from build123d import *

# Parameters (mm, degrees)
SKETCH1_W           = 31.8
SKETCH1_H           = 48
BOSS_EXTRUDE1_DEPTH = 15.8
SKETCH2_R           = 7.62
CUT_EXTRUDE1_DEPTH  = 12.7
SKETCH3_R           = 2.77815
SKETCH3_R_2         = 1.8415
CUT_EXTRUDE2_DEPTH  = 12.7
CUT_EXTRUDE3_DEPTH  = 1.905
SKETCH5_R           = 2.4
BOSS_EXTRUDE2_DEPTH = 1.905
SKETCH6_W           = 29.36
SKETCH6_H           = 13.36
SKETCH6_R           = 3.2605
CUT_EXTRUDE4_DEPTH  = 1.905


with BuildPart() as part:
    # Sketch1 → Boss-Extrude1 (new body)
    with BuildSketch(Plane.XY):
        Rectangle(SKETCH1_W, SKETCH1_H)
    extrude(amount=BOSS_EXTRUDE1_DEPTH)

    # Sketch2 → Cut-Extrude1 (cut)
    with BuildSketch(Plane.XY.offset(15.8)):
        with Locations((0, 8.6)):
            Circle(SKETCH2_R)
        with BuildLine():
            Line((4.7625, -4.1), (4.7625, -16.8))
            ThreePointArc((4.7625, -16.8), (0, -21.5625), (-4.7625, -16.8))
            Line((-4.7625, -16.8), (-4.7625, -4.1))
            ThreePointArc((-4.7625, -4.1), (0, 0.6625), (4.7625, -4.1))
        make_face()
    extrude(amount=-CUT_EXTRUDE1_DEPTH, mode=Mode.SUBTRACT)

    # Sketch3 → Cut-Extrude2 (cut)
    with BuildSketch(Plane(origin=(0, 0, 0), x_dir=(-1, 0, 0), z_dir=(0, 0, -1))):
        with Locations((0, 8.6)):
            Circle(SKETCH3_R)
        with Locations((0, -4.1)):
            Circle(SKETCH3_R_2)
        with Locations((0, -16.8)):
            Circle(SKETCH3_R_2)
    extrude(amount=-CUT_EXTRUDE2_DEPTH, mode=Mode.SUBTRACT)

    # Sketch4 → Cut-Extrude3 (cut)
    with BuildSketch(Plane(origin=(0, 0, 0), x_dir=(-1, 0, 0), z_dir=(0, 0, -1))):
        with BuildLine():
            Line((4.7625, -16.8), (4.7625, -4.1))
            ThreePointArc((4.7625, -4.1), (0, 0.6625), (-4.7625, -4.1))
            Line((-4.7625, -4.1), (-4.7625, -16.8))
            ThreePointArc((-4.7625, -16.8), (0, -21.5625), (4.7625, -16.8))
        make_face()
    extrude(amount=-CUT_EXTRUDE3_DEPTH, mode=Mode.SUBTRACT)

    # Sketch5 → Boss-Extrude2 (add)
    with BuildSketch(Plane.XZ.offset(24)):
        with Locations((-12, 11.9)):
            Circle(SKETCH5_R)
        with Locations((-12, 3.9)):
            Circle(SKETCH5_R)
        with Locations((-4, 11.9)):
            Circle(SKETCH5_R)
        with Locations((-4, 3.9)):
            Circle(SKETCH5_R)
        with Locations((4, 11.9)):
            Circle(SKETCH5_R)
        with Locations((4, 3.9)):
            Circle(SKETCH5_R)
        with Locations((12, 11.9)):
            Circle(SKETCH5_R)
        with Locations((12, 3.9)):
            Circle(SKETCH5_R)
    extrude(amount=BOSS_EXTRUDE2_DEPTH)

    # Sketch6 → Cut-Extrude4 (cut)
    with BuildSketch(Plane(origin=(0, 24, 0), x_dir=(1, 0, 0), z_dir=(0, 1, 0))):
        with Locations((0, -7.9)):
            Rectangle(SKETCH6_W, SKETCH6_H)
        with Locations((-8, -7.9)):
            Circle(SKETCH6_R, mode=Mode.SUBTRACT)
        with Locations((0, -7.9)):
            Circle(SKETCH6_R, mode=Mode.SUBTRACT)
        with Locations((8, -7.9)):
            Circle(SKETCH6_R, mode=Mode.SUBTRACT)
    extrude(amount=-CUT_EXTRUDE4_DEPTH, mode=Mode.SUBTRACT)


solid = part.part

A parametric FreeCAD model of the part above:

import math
import FreeCAD as App
import Part
import Sketcher

V = App.Vector
Q = App.Units.Quantity

doc = App.newDocument("Part")
body = doc.addObject("PartDesign::Body", "Body")

# Sketch on XY plane
sketch1 = body.newObject("Sketcher::SketchObject", "Sketch")
sketch1.AttachmentSupport = (doc.getObject("XY_Plane"), [""])
sketch1.MapMode = "FlatFace"
sketch1.addGeometry([
    Part.LineSegment(V(-16, 24, 0), V(-16, -24, 0)),
    Part.LineSegment(V(-16, -24, 0), V(16, -24, 0)),
    Part.LineSegment(V(16, -24, 0), V(16, 24, 0)),
    Part.LineSegment(V(16, 24, 0), V(-16, 24, 0)),
], False)
sketch1.addConstraint([
    Sketcher.Constraint("Coincident", 0, 2, 1, 1),
    Sketcher.Constraint("Coincident", 1, 2, 2, 1),
    Sketcher.Constraint("Coincident", 2, 2, 3, 1),
    Sketcher.Constraint("Coincident", 3, 2, 0, 1),
    Sketcher.Constraint("Vertical", 0),
    Sketcher.Constraint("Horizontal", 1),
    Sketcher.Constraint("Vertical", 2),
    Sketcher.Constraint("Horizontal", 3),
    Sketcher.Constraint("Symmetric", 0, 2, 2, 2, -1, 1),
    Sketcher.Constraint("DistanceX", 1, 1, 1, 2, 31.8),
    Sketcher.Constraint("DistanceY", 0, 2, 0, 1, 48.0),
])
pad1 = body.newObject("PartDesign::Pad", "Pad")
pad1.Profile = sketch1
pad1.Length = 15.8

# Sketch on XY plane
sketch2 = body.newObject("Sketcher::SketchObject", "Sketch001")
sketch2.AttachmentSupport = (doc.getObject("XY_Plane"), [""])
sketch2.MapMode = "FlatFace"
sketch2.AttachmentOffset = App.Placement(V(0, 0, 15.8), App.Rotation())
sketch2.addGeometry([
    Part.Circle(V(0, 8.6, 0), V(0, 0, 1), 7.6),  # 0
    Part.LineSegment(V(4.8, -16.8, 0), V(4.8, -4.1, 0)),  # 1
    Part.ArcOfCircle(Part.Circle(V(0, -4.1, 0), V(0, 0, 1), 4.8), math.radians(0), math.radians(180)),  # 2
    Part.LineSegment(V(-4.8, -4.1, 0), V(-4.8, -16.8, 0)),  # 3
    Part.ArcOfCircle(Part.Circle(V(0, -16.8, 0), V(0, 0, 1), 4.8), math.radians(180), math.radians(360)),  # 4
], False)
sketch2.addConstraint([
    Sketcher.Constraint("Tangent", 1, 2, 2, 1),
    Sketcher.Constraint("Tangent", 2, 2, 3, 1),
    Sketcher.Constraint("Tangent", 3, 2, 4, 1),
    Sketcher.Constraint("Tangent", 4, 2, 1, 1),
    Sketcher.Constraint("Vertical", 1),
    Sketcher.Constraint("Vertical", 3),
    Sketcher.Constraint("PointOnObject", 0, 3, -2),
    Sketcher.Constraint("PointOnObject", 2, 3, -2),
    Sketcher.Constraint("Diameter", 0, Q("0.6 in")),
    Sketcher.Constraint("DistanceY", 1, 1, 1, 2, Q("0.5 in")),
    Sketcher.Constraint("Radius", 2, Q("0.1875 in")),
    Sketcher.Constraint("DistanceY", 4, 3, 0, 3, Q("1 in")),
    Sketcher.Constraint("DistanceY", -1, 1, 0, 3, 8.6),
])
pocket1 = body.newObject("PartDesign::Pocket", "Pocket")
pocket1.Profile = sketch2
pocket1.Length = Q("0.5 in")

# Sketch on XY plane
sketch3 = body.newObject("Sketcher::SketchObject", "Sketch002")
sketch3.AttachmentSupport = (doc.getObject("XY_Plane"), [""])
sketch3.MapMode = "FlatFace"
sketch3.addGeometry([
    Part.Circle(V(0, 8.6, 0), V(0, 0, 1), 2.8),
    Part.Circle(V(0, -4.1, 0), V(0, 0, 1), 1.8),
    Part.Circle(V(0, -16.8, 0), V(0, 0, 1), 1.8),
], False)
sketch3.addConstraint([
    Sketcher.Constraint("Equal", 1, 2),
    Sketcher.Constraint("PointOnObject", 0, 3, -2),
    Sketcher.Constraint("PointOnObject", 1, 3, -2),
    Sketcher.Constraint("PointOnObject", 2, 3, -2),
    Sketcher.Constraint("Diameter", 1, Q("0.145 in")),
    Sketcher.Constraint("DistanceY", 2, 3, 0, 3, Q("1 in")),
    Sketcher.Constraint("DistanceY", 1, 3, 0, 3, Q("0.5 in")),
    Sketcher.Constraint("Diameter", 0, 5.5563),
    Sketcher.Constraint("DistanceY", -1, 1, 0, 3, 8.6),
])
pocket2 = body.newObject("PartDesign::Pocket", "Pocket001")
pocket2.Profile = sketch3
pocket2.Length = Q("0.5 in")
pocket2.Reversed = True

# Sketch on XY plane
sketch4 = body.newObject("Sketcher::SketchObject", "Sketch003")
sketch4.AttachmentSupport = (doc.getObject("XY_Plane"), [""])
sketch4.MapMode = "FlatFace"
sketch4.addGeometry([
    Part.LineSegment(V(-4.8, -16.8, 0), V(-4.8, -4.1, 0)),
    Part.ArcOfCircle(Part.Circle(V(0, -4.1, 0), V(0, 0, 1), 4.8), math.radians(0), math.radians(180)),
    Part.LineSegment(V(4.8, -4.1, 0), V(4.8, -16.8, 0)),
    Part.ArcOfCircle(Part.Circle(V(0, -16.8, 0), V(0, 0, 1), 4.8), math.radians(180), math.radians(360)),
], False)
sketch4.addConstraint([
    Sketcher.Constraint("Tangent", 0, 2, 1, 2),
    Sketcher.Constraint("Tangent", 1, 1, 2, 1),
    Sketcher.Constraint("Tangent", 2, 2, 3, 2),
    Sketcher.Constraint("Tangent", 3, 1, 0, 1),
    Sketcher.Constraint("Vertical", 0),
    Sketcher.Constraint("Vertical", 2),
    Sketcher.Constraint("PointOnObject", 1, 3, -2),
    Sketcher.Constraint("DistanceY", 0, 1, 0, 2, Q("0.5 in")),
    Sketcher.Constraint("Radius", 1, Q("0.1875 in")),
    Sketcher.Constraint("DistanceY", 1, 3, -1, 1, 4.1),
])
pocket3 = body.newObject("PartDesign::Pocket", "Pocket002")
pocket3.Profile = sketch4
pocket3.Length = Q("0.075 in")
pocket3.Reversed = True

# Sketch on XZ plane
sketch5 = body.newObject("Sketcher::SketchObject", "Sketch004")
sketch5.AttachmentSupport = (doc.getObject("XZ_Plane"), [""])
sketch5.MapMode = "FlatFace"
sketch5.AttachmentOffset = App.Placement(V(0, 0, 24), App.Rotation())
sketch5.addGeometry([
    Part.Circle(V(-12, 11.9, 0), V(0, 0, 1), 2.4),  # 0
    Part.Circle(V(-12, 3.9, 0), V(0, 0, 1), 2.4),  # 1
    Part.Circle(V(-4, 11.9, 0), V(0, 0, 1), 2.4),  # 2
    Part.Circle(V(-4, 3.9, 0), V(0, 0, 1), 2.4),  # 3
    Part.Circle(V(4, 11.9, 0), V(0, 0, 1), 2.4),  # 4
    Part.Circle(V(4, 3.9, 0), V(0, 0, 1), 2.4),  # 5
    Part.Circle(V(12, 11.9, 0), V(0, 0, 1), 2.4),  # 6
    Part.Circle(V(12, 3.9, 0), V(0, 0, 1), 2.4),  # 7
], False)
sketch5.addConstraint([
    Sketcher.Constraint("Equal", 0, 1),
    Sketcher.Constraint("Equal", 1, 2),
    Sketcher.Constraint("Equal", 2, 3),
    Sketcher.Constraint("Equal", 3, 4),
    Sketcher.Constraint("Equal", 4, 5),
    Sketcher.Constraint("Equal", 5, 6),
    Sketcher.Constraint("Equal", 6, 7),
    Sketcher.Constraint("Symmetric", 2, 3, 4, 3, -2),
    Sketcher.Constraint("Symmetric", 3, 3, 5, 3, -2),
    Sketcher.Constraint("Symmetric", 0, 3, 6, 3, -2),
    Sketcher.Constraint("Symmetric", 1, 3, 7, 3, -2),
    Sketcher.Constraint("Horizontal", 0, 3, 2, 3),
    Sketcher.Constraint("Horizontal", 1, 3, 3, 3),
    Sketcher.Constraint("Vertical", 0, 3, 1, 3),
    Sketcher.Constraint("Vertical", 2, 3, 3, 3),
    Sketcher.Constraint("Diameter", 0, 4.8),
    Sketcher.Constraint("DistanceX", 0, 3, -1, 1, 12.0),
    Sketcher.Constraint("DistanceY", -1, 1, 0, 3, 11.9),
    Sketcher.Constraint("DistanceY", -1, 1, 1, 3, 3.9),
    Sketcher.Constraint("DistanceX", 2, 3, -1, 1, 4.0),
])
pad2 = body.newObject("PartDesign::Pad", "Pad001")
pad2.Profile = sketch5
pad2.Length = Q("0.075 in")

# Sketch on XZ plane
sketch6 = body.newObject("Sketcher::SketchObject", "Sketch005")
sketch6.AttachmentSupport = (doc.getObject("XZ_Plane"), [""])
sketch6.MapMode = "FlatFace"
sketch6.AttachmentOffset = App.Placement(V(0, 0, -24), App.Rotation())
sketch6.addGeometry([
    Part.LineSegment(V(-14.7, 1.2, 0), V(-14.7, 14.6, 0)),  # 0
    Part.LineSegment(V(-14.7, 14.6, 0), V(14.7, 14.6, 0)),  # 1
    Part.LineSegment(V(14.7, 14.6, 0), V(14.7, 1.2, 0)),  # 2
    Part.LineSegment(V(14.7, 1.2, 0), V(-14.7, 1.2, 0)),  # 3
    Part.Circle(V(-8, 7.9, 0), V(0, 0, 1), 3.3),  # 4
    Part.Circle(V(0, 7.9, 0), V(0, 0, 1), 3.3),  # 5
    Part.Circle(V(8, 7.9, 0), V(0, 0, 1), 3.3),  # 6
], False)
sketch6.addConstraint([
    Sketcher.Constraint("Coincident", 0, 2, 1, 1),
    Sketcher.Constraint("Coincident", 1, 2, 2, 1),
    Sketcher.Constraint("Coincident", 2, 2, 3, 1),
    Sketcher.Constraint("Coincident", 3, 2, 0, 1),
    Sketcher.Constraint("Vertical", 0),
    Sketcher.Constraint("Horizontal", 1),
    Sketcher.Constraint("Vertical", 2),
    Sketcher.Constraint("Horizontal", 3),
    Sketcher.Constraint("Equal", 4, 5),
    Sketcher.Constraint("Equal", 5, 6),
    Sketcher.Constraint("Symmetric", 4, 3, 6, 3, -2),
    Sketcher.Constraint("PointOnObject", 5, 3, -2),
    Sketcher.Constraint("Horizontal", 4, 3, 5, 3),
    Sketcher.Constraint("Diameter", 4, 6.521),
    Sketcher.Constraint("DistanceX", 1, 1, 1, 2, 29.36),
    Sketcher.Constraint("DistanceY", 0, 1, 0, 2, 13.36),
    Sketcher.Constraint("DistanceX", 4, 3, -1, 1, 8.0),
    Sketcher.Constraint("DistanceY", -1, 1, 4, 3, 7.9),
    Sketcher.Constraint("DistanceX", 0, 2, -1, 1, 14.68),
    Sketcher.Constraint("DistanceY", -1, 1, 0, 2, 14.58),
])
pocket4 = body.newObject("PartDesign::Pocket", "Pocket003")
pocket4.Profile = sketch6
pocket4.Length = Q("0.075 in")
pocket4.Reversed = True

doc.recompute()
